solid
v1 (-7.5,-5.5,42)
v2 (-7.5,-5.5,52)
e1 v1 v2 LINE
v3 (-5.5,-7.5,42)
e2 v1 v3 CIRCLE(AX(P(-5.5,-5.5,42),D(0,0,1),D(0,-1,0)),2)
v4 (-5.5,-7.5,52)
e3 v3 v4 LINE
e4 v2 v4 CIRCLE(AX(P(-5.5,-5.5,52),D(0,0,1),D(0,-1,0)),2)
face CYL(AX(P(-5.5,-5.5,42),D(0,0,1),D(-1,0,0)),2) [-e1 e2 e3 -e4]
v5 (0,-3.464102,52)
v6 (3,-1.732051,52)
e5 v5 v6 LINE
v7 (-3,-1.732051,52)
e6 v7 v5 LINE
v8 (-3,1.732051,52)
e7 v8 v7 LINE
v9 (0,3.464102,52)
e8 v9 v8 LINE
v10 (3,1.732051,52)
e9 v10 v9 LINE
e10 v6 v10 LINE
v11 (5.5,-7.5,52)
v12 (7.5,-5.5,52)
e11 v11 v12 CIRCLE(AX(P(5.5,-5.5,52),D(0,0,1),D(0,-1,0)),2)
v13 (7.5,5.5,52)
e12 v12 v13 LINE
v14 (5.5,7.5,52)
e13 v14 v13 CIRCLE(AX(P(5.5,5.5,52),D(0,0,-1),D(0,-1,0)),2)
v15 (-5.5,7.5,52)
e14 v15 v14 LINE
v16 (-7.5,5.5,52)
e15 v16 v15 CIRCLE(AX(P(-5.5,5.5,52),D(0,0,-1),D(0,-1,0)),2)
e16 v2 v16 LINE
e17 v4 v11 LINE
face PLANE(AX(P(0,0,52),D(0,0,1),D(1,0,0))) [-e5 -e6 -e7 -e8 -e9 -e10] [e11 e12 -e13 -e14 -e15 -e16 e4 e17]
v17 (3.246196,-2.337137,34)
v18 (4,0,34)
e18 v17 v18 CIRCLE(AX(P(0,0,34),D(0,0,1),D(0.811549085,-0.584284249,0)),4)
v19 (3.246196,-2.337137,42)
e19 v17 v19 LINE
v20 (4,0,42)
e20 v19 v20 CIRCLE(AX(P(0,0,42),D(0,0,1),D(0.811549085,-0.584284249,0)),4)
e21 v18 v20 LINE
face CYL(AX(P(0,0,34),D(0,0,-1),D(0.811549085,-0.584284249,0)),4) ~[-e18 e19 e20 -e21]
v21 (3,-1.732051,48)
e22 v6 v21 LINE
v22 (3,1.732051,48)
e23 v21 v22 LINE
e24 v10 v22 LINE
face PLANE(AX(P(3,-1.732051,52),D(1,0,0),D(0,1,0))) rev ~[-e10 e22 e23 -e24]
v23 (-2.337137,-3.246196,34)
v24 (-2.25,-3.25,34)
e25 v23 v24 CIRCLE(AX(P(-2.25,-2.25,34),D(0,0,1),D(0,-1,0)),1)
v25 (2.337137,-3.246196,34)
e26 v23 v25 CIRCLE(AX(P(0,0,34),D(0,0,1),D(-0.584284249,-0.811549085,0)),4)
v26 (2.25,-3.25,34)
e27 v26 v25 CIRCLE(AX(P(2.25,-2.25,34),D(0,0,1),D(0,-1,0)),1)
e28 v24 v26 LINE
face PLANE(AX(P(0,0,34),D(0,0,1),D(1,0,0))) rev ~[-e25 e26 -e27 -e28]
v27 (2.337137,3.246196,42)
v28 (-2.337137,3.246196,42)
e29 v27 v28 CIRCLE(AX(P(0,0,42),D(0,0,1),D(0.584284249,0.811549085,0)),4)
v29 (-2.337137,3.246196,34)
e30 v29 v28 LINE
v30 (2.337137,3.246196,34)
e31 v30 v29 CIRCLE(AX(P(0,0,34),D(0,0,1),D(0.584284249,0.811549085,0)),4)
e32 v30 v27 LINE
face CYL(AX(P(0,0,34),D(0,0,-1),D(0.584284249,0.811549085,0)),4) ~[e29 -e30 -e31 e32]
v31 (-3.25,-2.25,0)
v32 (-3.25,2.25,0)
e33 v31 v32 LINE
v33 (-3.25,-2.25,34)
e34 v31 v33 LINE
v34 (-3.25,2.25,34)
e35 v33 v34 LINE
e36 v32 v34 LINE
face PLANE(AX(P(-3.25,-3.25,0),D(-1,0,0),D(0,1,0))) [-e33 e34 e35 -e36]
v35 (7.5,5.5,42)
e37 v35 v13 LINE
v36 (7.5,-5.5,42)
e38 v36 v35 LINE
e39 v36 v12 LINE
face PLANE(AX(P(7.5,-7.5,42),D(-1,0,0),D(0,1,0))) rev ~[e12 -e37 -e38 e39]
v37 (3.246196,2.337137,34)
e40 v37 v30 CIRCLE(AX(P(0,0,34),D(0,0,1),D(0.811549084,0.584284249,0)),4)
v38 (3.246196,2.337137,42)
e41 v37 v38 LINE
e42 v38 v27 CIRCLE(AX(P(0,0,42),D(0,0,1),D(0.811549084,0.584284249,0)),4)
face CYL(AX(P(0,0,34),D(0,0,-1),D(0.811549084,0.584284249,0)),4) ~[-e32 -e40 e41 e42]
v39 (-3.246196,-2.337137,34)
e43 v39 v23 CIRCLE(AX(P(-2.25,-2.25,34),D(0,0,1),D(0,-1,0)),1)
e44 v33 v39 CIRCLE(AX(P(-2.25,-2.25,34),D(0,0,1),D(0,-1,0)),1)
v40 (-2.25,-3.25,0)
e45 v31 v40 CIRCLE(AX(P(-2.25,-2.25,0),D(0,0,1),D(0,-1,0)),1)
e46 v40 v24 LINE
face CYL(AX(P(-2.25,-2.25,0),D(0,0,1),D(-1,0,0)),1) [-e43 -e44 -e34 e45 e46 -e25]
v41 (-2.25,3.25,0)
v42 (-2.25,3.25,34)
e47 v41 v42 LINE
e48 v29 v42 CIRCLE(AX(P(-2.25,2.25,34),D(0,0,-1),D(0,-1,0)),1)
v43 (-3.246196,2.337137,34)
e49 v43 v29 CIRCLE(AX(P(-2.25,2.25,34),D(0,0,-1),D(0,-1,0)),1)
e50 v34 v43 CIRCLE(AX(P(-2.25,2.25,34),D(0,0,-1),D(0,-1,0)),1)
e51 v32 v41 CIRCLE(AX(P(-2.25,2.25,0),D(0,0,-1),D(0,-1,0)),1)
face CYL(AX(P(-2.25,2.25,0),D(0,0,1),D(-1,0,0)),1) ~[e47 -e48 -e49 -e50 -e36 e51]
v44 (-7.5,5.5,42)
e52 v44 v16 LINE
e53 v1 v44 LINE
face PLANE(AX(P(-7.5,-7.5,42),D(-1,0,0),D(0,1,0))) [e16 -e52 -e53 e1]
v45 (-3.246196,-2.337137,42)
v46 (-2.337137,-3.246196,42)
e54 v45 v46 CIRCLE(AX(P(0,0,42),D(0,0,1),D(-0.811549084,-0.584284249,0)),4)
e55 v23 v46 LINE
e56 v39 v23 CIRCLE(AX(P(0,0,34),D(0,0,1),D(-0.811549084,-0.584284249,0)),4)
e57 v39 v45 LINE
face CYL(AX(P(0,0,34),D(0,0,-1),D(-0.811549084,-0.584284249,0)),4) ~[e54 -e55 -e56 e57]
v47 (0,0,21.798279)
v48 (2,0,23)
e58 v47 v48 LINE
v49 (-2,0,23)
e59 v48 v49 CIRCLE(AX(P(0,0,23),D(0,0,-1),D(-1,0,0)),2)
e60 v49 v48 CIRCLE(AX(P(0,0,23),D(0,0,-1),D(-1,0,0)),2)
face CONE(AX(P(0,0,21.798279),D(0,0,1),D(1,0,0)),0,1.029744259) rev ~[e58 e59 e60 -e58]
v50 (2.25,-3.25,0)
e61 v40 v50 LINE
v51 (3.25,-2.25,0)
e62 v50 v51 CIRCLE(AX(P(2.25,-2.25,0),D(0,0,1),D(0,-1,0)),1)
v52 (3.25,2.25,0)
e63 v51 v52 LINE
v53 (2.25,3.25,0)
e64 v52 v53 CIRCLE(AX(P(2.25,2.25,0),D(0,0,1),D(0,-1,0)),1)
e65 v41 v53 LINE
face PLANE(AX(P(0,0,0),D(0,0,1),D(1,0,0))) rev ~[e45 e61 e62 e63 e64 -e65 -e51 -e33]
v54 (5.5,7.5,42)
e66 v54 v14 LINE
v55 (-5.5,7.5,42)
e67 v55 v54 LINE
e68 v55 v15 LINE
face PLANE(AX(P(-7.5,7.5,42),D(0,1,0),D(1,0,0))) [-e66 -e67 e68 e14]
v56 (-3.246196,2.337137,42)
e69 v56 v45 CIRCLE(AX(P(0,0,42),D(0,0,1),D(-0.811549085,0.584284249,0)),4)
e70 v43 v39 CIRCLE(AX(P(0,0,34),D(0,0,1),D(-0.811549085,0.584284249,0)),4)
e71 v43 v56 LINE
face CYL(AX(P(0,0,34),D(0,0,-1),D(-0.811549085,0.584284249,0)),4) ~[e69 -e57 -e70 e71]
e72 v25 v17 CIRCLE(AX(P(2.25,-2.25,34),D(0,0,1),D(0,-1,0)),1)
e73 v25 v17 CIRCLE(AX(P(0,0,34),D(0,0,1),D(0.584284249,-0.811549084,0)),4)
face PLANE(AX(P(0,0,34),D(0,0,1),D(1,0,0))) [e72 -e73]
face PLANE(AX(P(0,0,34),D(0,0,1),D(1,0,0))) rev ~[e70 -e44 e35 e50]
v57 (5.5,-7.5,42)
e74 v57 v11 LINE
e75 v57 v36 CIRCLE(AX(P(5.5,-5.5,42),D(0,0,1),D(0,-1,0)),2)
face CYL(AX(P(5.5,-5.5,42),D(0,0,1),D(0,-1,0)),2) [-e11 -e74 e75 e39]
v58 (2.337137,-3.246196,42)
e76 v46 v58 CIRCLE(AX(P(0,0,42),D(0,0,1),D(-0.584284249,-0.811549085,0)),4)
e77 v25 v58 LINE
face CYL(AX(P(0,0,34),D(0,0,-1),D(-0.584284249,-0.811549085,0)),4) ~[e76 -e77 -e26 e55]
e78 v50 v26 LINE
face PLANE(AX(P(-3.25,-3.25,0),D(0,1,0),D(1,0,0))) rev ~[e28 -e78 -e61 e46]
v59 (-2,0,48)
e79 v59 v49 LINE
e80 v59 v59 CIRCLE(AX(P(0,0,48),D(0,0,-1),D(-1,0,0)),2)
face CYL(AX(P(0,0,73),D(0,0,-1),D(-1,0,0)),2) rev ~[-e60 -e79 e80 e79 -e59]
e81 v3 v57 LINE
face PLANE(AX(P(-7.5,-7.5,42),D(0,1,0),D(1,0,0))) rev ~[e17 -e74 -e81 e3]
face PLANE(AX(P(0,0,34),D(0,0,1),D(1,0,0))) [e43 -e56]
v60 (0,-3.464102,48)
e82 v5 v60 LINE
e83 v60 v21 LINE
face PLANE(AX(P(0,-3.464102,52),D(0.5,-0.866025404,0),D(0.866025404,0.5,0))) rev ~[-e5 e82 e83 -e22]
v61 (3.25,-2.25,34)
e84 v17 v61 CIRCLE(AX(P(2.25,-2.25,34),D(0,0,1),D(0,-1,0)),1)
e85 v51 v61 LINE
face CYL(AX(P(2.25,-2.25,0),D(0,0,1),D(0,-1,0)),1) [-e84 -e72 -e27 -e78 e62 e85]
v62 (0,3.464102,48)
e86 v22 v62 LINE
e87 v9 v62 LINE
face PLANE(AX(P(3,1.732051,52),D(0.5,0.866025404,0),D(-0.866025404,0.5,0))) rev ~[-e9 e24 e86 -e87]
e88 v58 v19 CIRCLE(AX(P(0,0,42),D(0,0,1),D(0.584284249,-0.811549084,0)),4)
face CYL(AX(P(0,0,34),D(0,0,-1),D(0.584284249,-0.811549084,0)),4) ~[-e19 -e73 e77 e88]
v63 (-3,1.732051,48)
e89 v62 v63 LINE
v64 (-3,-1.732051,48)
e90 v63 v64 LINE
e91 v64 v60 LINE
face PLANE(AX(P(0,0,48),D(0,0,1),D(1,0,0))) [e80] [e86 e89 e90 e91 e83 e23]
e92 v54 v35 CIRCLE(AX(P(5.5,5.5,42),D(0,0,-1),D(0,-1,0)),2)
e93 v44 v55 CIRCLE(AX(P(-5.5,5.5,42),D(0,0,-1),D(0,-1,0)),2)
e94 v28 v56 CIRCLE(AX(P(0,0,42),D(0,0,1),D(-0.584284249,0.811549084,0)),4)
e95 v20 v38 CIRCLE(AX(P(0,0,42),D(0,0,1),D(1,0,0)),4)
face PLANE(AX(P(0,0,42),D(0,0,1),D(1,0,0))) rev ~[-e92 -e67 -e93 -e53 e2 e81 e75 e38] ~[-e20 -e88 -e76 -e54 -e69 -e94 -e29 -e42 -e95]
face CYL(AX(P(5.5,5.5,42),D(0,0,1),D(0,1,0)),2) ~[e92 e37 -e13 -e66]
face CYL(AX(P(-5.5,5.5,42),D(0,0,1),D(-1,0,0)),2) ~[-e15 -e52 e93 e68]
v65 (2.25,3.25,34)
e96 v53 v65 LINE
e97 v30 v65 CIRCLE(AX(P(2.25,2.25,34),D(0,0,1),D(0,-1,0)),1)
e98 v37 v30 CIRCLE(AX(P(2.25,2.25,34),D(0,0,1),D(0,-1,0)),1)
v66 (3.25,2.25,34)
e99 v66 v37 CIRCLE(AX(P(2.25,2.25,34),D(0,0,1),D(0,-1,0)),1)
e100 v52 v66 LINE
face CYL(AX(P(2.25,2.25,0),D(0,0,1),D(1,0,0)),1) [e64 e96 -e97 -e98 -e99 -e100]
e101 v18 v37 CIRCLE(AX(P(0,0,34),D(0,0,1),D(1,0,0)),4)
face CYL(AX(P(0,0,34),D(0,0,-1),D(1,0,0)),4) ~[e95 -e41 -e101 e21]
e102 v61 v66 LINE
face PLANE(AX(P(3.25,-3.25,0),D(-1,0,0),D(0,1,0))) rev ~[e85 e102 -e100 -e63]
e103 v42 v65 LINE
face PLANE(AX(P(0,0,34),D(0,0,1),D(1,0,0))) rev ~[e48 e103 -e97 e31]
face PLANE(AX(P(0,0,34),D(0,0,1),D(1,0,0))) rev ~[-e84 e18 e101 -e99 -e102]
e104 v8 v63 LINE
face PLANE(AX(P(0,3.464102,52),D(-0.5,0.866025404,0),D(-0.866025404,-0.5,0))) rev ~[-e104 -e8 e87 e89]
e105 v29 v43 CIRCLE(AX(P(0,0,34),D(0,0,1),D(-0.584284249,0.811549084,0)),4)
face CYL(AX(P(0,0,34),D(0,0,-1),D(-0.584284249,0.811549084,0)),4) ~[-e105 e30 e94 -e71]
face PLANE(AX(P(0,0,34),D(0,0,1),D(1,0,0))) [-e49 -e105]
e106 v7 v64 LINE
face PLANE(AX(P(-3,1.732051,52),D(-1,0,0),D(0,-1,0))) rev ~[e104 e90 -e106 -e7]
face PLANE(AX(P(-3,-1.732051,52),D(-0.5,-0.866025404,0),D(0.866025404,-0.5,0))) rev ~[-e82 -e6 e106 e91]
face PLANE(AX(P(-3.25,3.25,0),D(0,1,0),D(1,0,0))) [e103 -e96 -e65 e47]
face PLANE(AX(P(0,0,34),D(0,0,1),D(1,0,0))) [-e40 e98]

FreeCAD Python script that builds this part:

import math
import FreeCAD as App
import Part
import Sketcher
Q = App.Units.Quantity


def edges_at(feature, points):
    """Names of the edges that pass closest to the given points."""
    edges = feature.Shape.Edges
    near = lambda p: min(range(len(edges)), key=lambda i: edges[i].distToShape(Part.Vertex(*p))[0])
    return sorted({f"Edge{near(p) + 1}" for p in points})

doc = App.newDocument("Part")
body = doc.addObject("PartDesign::Body", "Body")

sketch1 = body.newObject("Sketcher::SketchObject", "Sketch")
sketch1.AttachmentSupport = (doc.getObject("XY_Plane"), [""])
sketch1.MapMode = "FlatFace"
sketch1.addGeometry(Part.LineSegment(App.Vector(-3, 3, 0), App.Vector(-3, -3, 0)), False)
sketch1.addGeometry(Part.LineSegment(App.Vector(-3, -3, 0), App.Vector(3, -3, 0)), False)
sketch1.addGeometry(Part.LineSegment(App.Vector(3, -3, 0), App.Vector(3, 3, 0)), False)
sketch1.addGeometry(Part.LineSegment(App.Vector(3, 3, 0), App.Vector(-3, 3, 0)), False)
sketch1.addConstraint(Sketcher.Constraint("Coincident", 0, 2, 1, 1))
sketch1.addConstraint(Sketcher.Constraint("Coincident", 1, 2, 2, 1))
sketch1.addConstraint(Sketcher.Constraint("Coincident", 2, 2, 3, 1))
sketch1.addConstraint(Sketcher.Constraint("Coincident", 3, 2, 0, 1))
sketch1.addConstraint(Sketcher.Constraint("Vertical", 0))
sketch1.addConstraint(Sketcher.Constraint("Horizontal", 1))
sketch1.addConstraint(Sketcher.Constraint("Vertical", 2))
sketch1.addConstraint(Sketcher.Constraint("Horizontal", 3))
sketch1.addConstraint(Sketcher.Constraint("Symmetric", 0, 2, 2, 2, -1, 1))
sketch1.addConstraint(Sketcher.Constraint("Equal", 3, 0))
sketch1.addConstraint(Sketcher.Constraint("DistanceX", 1, 1, 1, 2, Q("6.5 mm")))
pad1 = body.newObject("PartDesign::Pad", "Pad")
pad1.Profile = sketch1
pad1.Length = 34
doc.recompute()

fillet = body.newObject("PartDesign::Fillet", "Fillet")
fillet.Base = (pad1, edges_at(pad1, [
    (-3.25, 3.25, 17),
    (3.25, 3.25, 17),
    (3.25, -3.25, 17),
    (-3.25, -3.25, 17),
]))
fillet.Radius = 1

sketch2 = body.newObject("Sketcher::SketchObject", "Sketch001")
sketch2.AttachmentSupport = (doc.getObject("XY_Plane"), [""])
sketch2.MapMode = "FlatFace"
sketch2.AttachmentOffset = App.Placement(App.Vector(0, 0, 34), App.Rotation())
sketch2.addGeometry(Part.ArcOfCircle(Part.Circle(App.Vector(0, 0, 0), App.Vector(0, 0, 1), 4), math.radians(35.75), math.radians(54.25)), False)
sketch2.addGeometry(Part.ArcOfCircle(Part.Circle(App.Vector(0, 0, 0), App.Vector(0, 0, 1), 4), math.radians(54), math.radians(126)), False)
sketch2.addGeometry(Part.ArcOfCircle(Part.Circle(App.Vector(0, 0, 0), App.Vector(0, 0, 1), 4), math.radians(125.75), math.radians(144.25)), False)
sketch2.addGeometry(Part.ArcOfCircle(Part.Circle(App.Vector(0, 0, 0), App.Vector(0, 0, 1), 4), math.radians(144), math.radians(216)), False)
sketch2.addGeometry(Part.ArcOfCircle(Part.Circle(App.Vector(0, 0, 0), App.Vector(0, 0, 1), 4), math.radians(-144.25), math.radians(-125.75)), False)
sketch2.addGeometry(Part.ArcOfCircle(Part.Circle(App.Vector(0, 0, 0), App.Vector(0, 0, 1), 4), math.radians(-126), math.radians(-54)), False)
sketch2.addGeometry(Part.ArcOfCircle(Part.Circle(App.Vector(0, 0, 0), App.Vector(0, 0, 1), 4), math.radians(-54.25), math.radians(-35.75)), False)
sketch2.addGeometry(Part.ArcOfCircle(Part.Circle(App.Vector(0, 0, 0), App.Vector(0, 0, 1), 4), math.radians(-36), math.radians(0)), False)
sketch2.addGeometry(Part.ArcOfCircle(Part.Circle(App.Vector(0, 0, 0), App.Vector(0, 0, 1), 4), math.radians(0), math.radians(36)), False)
sketch2.addConstraint(Sketcher.Constraint("Tangent", 0, 2, 1, 1))
sketch2.addConstraint(Sketcher.Constraint("Tangent", 1, 2, 2, 1))
sketch2.addConstraint(Sketcher.Constraint("Tangent", 2, 2, 3, 1))
sketch2.addConstraint(Sketcher.Constraint("Tangent", 3, 2, 4, 1))
sketch2.addConstraint(Sketcher.Constraint("Tangent", 4, 2, 5, 1))
sketch2.addConstraint(Sketcher.Constraint("Tangent", 5, 2, 6, 1))
sketch2.addConstraint(Sketcher.Constraint("Tangent", 6, 2, 7, 1))
sketch2.addConstraint(Sketcher.Constraint("Tangent", 7, 2, 8, 1))
sketch2.addConstraint(Sketcher.Constraint("Tangent", 8, 2, 0, 1))
sketch2.addConstraint(Sketcher.Constraint("Coincident", 0, 3, -1, 1))
sketch2.addConstraint(Sketcher.Constraint("Coincident", 2, 3, -1, 1))
sketch2.addConstraint(Sketcher.Constraint("Coincident", 4, 3, -1, 1))
sketch2.addConstraint(Sketcher.Constraint("Coincident", 6, 3, -1, 1))
sketch2.addConstraint(Sketcher.Constraint("PointOnObject", 7, 2, -1))
sketch2.addConstraint(Sketcher.Constraint("Horizontal", 0, 2, 1, 2))
sketch2.addConstraint(Sketcher.Constraint("Horizontal", 4, 2, 5, 2))
sketch2.addConstraint(Sketcher.Constraint("Horizontal", 3, 2, 6, 2))
sketch2.addConstraint(Sketcher.Constraint("Horizontal", 2, 2, 8, 2))
sketch2.addConstraint(Sketcher.Constraint("Vertical", 2, 2, 3, 2))
sketch2.addConstraint(Sketcher.Constraint("Vertical", 1, 2, 4, 2))
sketch2.addConstraint(Sketcher.Constraint("Radius", 0, Q("4 mm")))
sketch2.addConstraint(Sketcher.Constraint("DistanceX", 2, 2, 1, 2, Q("0.909059 mm")))
sketch2.addConstraint(Sketcher.Constraint("DistanceY", 2, 2, 1, 2, Q("0.909059 mm")))
pad2 = body.newObject("PartDesign::Pad", "Pad001")
pad2.Profile = sketch2
pad2.Length = 8

sketch3 = body.newObject("Sketcher::SketchObject", "Sketch002")
sketch3.AttachmentSupport = (doc.getObject("XY_Plane"), [""])
sketch3.MapMode = "FlatFace"
sketch3.AttachmentOffset = App.Placement(App.Vector(0, 0, 42), App.Rotation())
sketch3.addGeometry(Part.LineSegment(App.Vector(-8, 8, 0), App.Vector(-8, -8, 0)), False)
sketch3.addGeometry(Part.LineSegment(App.Vector(-8, -8, 0), App.Vector(8, -8, 0)), False)
sketch3.addGeometry(Part.LineSegment(App.Vector(8, -8, 0), App.Vector(8, 8, 0)), False)
sketch3.addGeometry(Part.LineSegment(App.Vector(8, 8, 0), App.Vector(-8, 8, 0)), False)
sketch3.addConstraint(Sketcher.Constraint("Coincident", 0, 2, 1, 1))
sketch3.addConstraint(Sketcher.Constraint("Coincident", 1, 2, 2, 1))
sketch3.addConstraint(Sketcher.Constraint("Coincident", 2, 2, 3, 1))
sketch3.addConstraint(Sketcher.Constraint("Coincident", 3, 2, 0, 1))
sketch3.addConstraint(Sketcher.Constraint("Vertical", 0))
sketch3.addConstraint(Sketcher.Constraint("Horizontal", 1))
sketch3.addConstraint(Sketcher.Constraint("Vertical", 2))
sketch3.addConstraint(Sketcher.Constraint("Horizontal", 3))
sketch3.addConstraint(Sketcher.Constraint("Symmetric", 0, 2, 2, 2, -1, 1))
sketch3.addConstraint(Sketcher.Constraint("Equal", 3, 0))
sketch3.addConstraint(Sketcher.Constraint("DistanceX", 1, 1, 1, 2, Q("15 mm")))
pad3 = body.newObject("PartDesign::Pad", "Pad002")
pad3.Profile = sketch3
pad3.Length = 10

sketch4 = body.newObject("Sketcher::SketchObject", "Sketch003")
sketch4.AttachmentSupport = (doc.getObject("XY_Plane"), [""])
sketch4.MapMode = "FlatFace"
sketch4.AttachmentOffset = App.Placement(App.Vector(0, 0, 52), App.Rotation())
sketch4.addGeometry(Part.LineSegment(App.Vector(-3, 1.7, 0), App.Vector(-3, -1.7, 0)), False)
sketch4.addGeometry(Part.LineSegment(App.Vector(-3, -1.7, 0), App.Vector(0, -3.5, 0)), False)
sketch4.addGeometry(Part.LineSegment(App.Vector(0, -3.5, 0), App.Vector(3, -1.7, 0)), False)
sketch4.addGeometry(Part.LineSegment(App.Vector(3, -1.7, 0), App.Vector(3, 1.7, 0)), False)
sketch4.addGeometry(Part.LineSegment(App.Vector(3, 1.7, 0), App.Vector(0, 3.5, 0)), False)
sketch4.addGeometry(Part.LineSegment(App.Vector(0, 3.5, 0), App.Vector(-3, 1.7, 0)), False)
sketch4.addConstraint(Sketcher.Constraint("Coincident", 0, 2, 1, 1))
sketch4.addConstraint(Sketcher.Constraint("Coincident", 1, 2, 2, 1))
sketch4.addConstraint(Sketcher.Constraint("Coincident", 2, 2, 3, 1))
sketch4.addConstraint(Sketcher.Constraint("Coincident", 3, 2, 4, 1))
sketch4.addConstraint(Sketcher.Constraint("Coincident", 4, 2, 5, 1))
sketch4.addConstraint(Sketcher.Constraint("Coincident", 5, 2, 0, 1))
sketch4.addConstraint(Sketcher.Constraint("Vertical", 0))
sketch4.addConstraint(Sketcher.Constraint("Vertical", 3))
sketch4.addConstraint(Sketcher.Constraint("Symmetric", 0, 2, 3, 2, -1, 1))
sketch4.addConstraint(Sketcher.Constraint("Symmetric", 1, 2, 4, 2, -1, 1))
sketch4.addConstraint(Sketcher.Constraint("PointOnObject", 1, 2, -2))
sketch4.addConstraint(Sketcher.Constraint("Parallel", 2, 5))
sketch4.addConstraint(Sketcher.Constraint("Horizontal", 0, 2, 2, 2))
sketch4.addConstraint(Sketcher.Constraint("Angle", 1, Q("-30 deg")))
sketch4.addConstraint(Sketcher.Constraint("DistanceX", 0, 2, -1, 1, Q("3 mm")))
sketch4.addConstraint(Sketcher.Constraint("DistanceY", 0, 2, 0, 1, Q("3.464102 mm")))
pocket1 = body.newObject("PartDesign::Pocket", "Pocket")
pocket1.Profile = sketch4
pocket1.Length = 4

sketch5 = body.newObject("Sketcher::SketchObject", "Sketch004")
sketch5.AttachmentSupport = (doc.getObject("XY_Plane"), [""])
sketch5.MapMode = "FlatFace"
sketch5.AttachmentOffset = App.Placement(App.Vector(0, 0, 48), App.Rotation())
sketch5.addGeometry(Part.Circle(App.Vector(0, 0, 0), App.Vector(0, 0, 1), 2), False)
sketch5.addConstraint(Sketcher.Constraint("Coincident", 0, 3, -1, 1))
sketch5.addConstraint(Sketcher.Constraint("Diameter", 0, Q("4 mm")))
doc.recompute()
hole = body.newObject("PartDesign::Hole", "Hole")
hole.Profile = sketch5
hole.ThreadType = "None"
hole.Diameter = 4
hole.DepthType = "Dimension"
hole.Depth = 25
hole.DrillPoint = "Angled"
hole.DrillPointAngle = 118
doc.recompute()

fillet2 = body.newObject("PartDesign::Fillet", "Fillet001")
fillet2.Base = (hole, edges_at(hole, [
    (7.5, 7.5, 47),
    (-7.5, 7.5, 47),
    (-7.5, -7.5, 47),
    (7.5, -7.5, 47),
]))
fillet2.Radius = 2

doc.recompute()
